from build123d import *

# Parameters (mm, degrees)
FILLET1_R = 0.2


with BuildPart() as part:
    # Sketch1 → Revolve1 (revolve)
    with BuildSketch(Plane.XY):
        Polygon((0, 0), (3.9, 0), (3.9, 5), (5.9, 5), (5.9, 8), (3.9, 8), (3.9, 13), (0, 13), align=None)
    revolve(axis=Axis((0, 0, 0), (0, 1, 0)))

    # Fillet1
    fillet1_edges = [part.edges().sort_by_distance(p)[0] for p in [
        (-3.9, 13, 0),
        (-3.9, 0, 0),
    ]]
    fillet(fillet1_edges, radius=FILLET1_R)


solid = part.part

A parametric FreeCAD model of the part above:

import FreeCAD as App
import Part
import Sketcher
from FreeCAD import Vector


def edges_at(feature, points):
    """Names of the edges that pass closest to the given points."""
    edges = feature.Shape.Edges
    near = lambda p: min(range(len(edges)), key=lambda i: edges[i].distToShape(Part.Vertex(*p))[0])
    return sorted({f"Edge{near(p) + 1}" for p in points})

doc = App.newDocument("Part")
body = doc.addObject("PartDesign::Body", "Body")

# Sketch on XY plane
sketch1 = body.newObject("Sketcher::SketchObject", "Sketch")
sketch1.AttachmentSupport = (doc.getObject("XY_Plane"), [""])
sketch1.MapMode = "FlatFace"
sketch1.addGeometry(Part.LineSegment(Vector(0, 0, 0), Vector(3.9, 0, 0)), False)
sketch1.addGeometry(Part.LineSegment(Vector(3.9, 0, 0), Vector(3.9, 5, 0)), False)
sketch1.addGeometry(Part.LineSegment(Vector(3.9, 5, 0), Vector(5.9, 5, 0)), False)
sketch1.addGeometry(Part.LineSegment(Vector(5.9, 5, 0), Vector(5.9, 8, 0)), False)
sketch1.addGeometry(Part.LineSegment(Vector(5.9, 8, 0), Vector(3.9, 8, 0)), False)
sketch1.addGeometry(Part.LineSegment(Vector(3.9, 8, 0), Vector(3.9, 13, 0)), False)
sketch1.addGeometry(Part.LineSegment(Vector(3.9, 13, 0), Vector(0, 13, 0)), False)
sketch1.addGeometry(Part.LineSegment(Vector(0, 13, 0), Vector(0, 0, 0)), False)
sketch1.addConstraint(Sketcher.Constraint("Coincident", 0, 2, 1, 1))
sketch1.addConstraint(Sketcher.Constraint("Coincident", 1, 2, 2, 1))
sketch1.addConstraint(Sketcher.Constraint("Coincident", 2, 2, 3, 1))
sketch1.addConstraint(Sketcher.Constraint("Coincident", 3, 2, 4, 1))
sketch1.addConstraint(Sketcher.Constraint("Coincident", 4, 2, 5, 1))
sketch1.addConstraint(Sketcher.Constraint("Coincident", 5, 2, 6, 1))
sketch1.addConstraint(Sketcher.Constraint("Coincident", 6, 2, 7, 1))
sketch1.addConstraint(Sketcher.Constraint("Coincident", 7, 2, 0, 1))
sketch1.addConstraint(Sketcher.Constraint("Horizontal", 0))
sketch1.addConstraint(Sketcher.Constraint("Vertical", 1))
sketch1.addConstraint(Sketcher.Constraint("Horizontal", 2))
sketch1.addConstraint(Sketcher.Constraint("Vertical", 3))
sketch1.addConstraint(Sketcher.Constraint("Horizontal", 4))
sketch1.addConstraint(Sketcher.Constraint("Vertical", 5))
sketch1.addConstraint(Sketcher.Constraint("Horizontal", 6))
sketch1.addConstraint(Sketcher.Constraint("Vertical", 7))
sketch1.addConstraint(Sketcher.Constraint("Coincident", 7, 2, -1, 1))
sketch1.addConstraint(Sketcher.Constraint("Vertical", 1, 2, 4, 2))
sketch1.addConstraint(Sketcher.Constraint("Equal", 1, 5))
sketch1.addConstraint(Sketcher.Constraint("DistanceX", 2, 1, 2, 2, 2.0))
sketch1.addConstraint(Sketcher.Constraint("DistanceY", 1, 1, 1, 2, 5.0))
sketch1.addConstraint(Sketcher.Constraint("DistanceY", 3, 1, 3, 2, 3.0))
sketch1.addConstraint(Sketcher.Constraint("DistanceX", 0, 1, 0, 2, 3.9))
revolution = body.newObject("PartDesign::Revolution", "Revolution")
revolution.Profile = sketch1
revolution.ReferenceAxis = (sketch1, ["V_Axis"])
revolution.Angle = 360
doc.recompute()

fillet = body.newObject("PartDesign::Fillet", "Fillet")
fillet.Base = (revolution, edges_at(revolution, [(-3.9, 13, 0), (-3.9, 0, 0)]))
fillet.Radius = 0.2

doc.recompute()
